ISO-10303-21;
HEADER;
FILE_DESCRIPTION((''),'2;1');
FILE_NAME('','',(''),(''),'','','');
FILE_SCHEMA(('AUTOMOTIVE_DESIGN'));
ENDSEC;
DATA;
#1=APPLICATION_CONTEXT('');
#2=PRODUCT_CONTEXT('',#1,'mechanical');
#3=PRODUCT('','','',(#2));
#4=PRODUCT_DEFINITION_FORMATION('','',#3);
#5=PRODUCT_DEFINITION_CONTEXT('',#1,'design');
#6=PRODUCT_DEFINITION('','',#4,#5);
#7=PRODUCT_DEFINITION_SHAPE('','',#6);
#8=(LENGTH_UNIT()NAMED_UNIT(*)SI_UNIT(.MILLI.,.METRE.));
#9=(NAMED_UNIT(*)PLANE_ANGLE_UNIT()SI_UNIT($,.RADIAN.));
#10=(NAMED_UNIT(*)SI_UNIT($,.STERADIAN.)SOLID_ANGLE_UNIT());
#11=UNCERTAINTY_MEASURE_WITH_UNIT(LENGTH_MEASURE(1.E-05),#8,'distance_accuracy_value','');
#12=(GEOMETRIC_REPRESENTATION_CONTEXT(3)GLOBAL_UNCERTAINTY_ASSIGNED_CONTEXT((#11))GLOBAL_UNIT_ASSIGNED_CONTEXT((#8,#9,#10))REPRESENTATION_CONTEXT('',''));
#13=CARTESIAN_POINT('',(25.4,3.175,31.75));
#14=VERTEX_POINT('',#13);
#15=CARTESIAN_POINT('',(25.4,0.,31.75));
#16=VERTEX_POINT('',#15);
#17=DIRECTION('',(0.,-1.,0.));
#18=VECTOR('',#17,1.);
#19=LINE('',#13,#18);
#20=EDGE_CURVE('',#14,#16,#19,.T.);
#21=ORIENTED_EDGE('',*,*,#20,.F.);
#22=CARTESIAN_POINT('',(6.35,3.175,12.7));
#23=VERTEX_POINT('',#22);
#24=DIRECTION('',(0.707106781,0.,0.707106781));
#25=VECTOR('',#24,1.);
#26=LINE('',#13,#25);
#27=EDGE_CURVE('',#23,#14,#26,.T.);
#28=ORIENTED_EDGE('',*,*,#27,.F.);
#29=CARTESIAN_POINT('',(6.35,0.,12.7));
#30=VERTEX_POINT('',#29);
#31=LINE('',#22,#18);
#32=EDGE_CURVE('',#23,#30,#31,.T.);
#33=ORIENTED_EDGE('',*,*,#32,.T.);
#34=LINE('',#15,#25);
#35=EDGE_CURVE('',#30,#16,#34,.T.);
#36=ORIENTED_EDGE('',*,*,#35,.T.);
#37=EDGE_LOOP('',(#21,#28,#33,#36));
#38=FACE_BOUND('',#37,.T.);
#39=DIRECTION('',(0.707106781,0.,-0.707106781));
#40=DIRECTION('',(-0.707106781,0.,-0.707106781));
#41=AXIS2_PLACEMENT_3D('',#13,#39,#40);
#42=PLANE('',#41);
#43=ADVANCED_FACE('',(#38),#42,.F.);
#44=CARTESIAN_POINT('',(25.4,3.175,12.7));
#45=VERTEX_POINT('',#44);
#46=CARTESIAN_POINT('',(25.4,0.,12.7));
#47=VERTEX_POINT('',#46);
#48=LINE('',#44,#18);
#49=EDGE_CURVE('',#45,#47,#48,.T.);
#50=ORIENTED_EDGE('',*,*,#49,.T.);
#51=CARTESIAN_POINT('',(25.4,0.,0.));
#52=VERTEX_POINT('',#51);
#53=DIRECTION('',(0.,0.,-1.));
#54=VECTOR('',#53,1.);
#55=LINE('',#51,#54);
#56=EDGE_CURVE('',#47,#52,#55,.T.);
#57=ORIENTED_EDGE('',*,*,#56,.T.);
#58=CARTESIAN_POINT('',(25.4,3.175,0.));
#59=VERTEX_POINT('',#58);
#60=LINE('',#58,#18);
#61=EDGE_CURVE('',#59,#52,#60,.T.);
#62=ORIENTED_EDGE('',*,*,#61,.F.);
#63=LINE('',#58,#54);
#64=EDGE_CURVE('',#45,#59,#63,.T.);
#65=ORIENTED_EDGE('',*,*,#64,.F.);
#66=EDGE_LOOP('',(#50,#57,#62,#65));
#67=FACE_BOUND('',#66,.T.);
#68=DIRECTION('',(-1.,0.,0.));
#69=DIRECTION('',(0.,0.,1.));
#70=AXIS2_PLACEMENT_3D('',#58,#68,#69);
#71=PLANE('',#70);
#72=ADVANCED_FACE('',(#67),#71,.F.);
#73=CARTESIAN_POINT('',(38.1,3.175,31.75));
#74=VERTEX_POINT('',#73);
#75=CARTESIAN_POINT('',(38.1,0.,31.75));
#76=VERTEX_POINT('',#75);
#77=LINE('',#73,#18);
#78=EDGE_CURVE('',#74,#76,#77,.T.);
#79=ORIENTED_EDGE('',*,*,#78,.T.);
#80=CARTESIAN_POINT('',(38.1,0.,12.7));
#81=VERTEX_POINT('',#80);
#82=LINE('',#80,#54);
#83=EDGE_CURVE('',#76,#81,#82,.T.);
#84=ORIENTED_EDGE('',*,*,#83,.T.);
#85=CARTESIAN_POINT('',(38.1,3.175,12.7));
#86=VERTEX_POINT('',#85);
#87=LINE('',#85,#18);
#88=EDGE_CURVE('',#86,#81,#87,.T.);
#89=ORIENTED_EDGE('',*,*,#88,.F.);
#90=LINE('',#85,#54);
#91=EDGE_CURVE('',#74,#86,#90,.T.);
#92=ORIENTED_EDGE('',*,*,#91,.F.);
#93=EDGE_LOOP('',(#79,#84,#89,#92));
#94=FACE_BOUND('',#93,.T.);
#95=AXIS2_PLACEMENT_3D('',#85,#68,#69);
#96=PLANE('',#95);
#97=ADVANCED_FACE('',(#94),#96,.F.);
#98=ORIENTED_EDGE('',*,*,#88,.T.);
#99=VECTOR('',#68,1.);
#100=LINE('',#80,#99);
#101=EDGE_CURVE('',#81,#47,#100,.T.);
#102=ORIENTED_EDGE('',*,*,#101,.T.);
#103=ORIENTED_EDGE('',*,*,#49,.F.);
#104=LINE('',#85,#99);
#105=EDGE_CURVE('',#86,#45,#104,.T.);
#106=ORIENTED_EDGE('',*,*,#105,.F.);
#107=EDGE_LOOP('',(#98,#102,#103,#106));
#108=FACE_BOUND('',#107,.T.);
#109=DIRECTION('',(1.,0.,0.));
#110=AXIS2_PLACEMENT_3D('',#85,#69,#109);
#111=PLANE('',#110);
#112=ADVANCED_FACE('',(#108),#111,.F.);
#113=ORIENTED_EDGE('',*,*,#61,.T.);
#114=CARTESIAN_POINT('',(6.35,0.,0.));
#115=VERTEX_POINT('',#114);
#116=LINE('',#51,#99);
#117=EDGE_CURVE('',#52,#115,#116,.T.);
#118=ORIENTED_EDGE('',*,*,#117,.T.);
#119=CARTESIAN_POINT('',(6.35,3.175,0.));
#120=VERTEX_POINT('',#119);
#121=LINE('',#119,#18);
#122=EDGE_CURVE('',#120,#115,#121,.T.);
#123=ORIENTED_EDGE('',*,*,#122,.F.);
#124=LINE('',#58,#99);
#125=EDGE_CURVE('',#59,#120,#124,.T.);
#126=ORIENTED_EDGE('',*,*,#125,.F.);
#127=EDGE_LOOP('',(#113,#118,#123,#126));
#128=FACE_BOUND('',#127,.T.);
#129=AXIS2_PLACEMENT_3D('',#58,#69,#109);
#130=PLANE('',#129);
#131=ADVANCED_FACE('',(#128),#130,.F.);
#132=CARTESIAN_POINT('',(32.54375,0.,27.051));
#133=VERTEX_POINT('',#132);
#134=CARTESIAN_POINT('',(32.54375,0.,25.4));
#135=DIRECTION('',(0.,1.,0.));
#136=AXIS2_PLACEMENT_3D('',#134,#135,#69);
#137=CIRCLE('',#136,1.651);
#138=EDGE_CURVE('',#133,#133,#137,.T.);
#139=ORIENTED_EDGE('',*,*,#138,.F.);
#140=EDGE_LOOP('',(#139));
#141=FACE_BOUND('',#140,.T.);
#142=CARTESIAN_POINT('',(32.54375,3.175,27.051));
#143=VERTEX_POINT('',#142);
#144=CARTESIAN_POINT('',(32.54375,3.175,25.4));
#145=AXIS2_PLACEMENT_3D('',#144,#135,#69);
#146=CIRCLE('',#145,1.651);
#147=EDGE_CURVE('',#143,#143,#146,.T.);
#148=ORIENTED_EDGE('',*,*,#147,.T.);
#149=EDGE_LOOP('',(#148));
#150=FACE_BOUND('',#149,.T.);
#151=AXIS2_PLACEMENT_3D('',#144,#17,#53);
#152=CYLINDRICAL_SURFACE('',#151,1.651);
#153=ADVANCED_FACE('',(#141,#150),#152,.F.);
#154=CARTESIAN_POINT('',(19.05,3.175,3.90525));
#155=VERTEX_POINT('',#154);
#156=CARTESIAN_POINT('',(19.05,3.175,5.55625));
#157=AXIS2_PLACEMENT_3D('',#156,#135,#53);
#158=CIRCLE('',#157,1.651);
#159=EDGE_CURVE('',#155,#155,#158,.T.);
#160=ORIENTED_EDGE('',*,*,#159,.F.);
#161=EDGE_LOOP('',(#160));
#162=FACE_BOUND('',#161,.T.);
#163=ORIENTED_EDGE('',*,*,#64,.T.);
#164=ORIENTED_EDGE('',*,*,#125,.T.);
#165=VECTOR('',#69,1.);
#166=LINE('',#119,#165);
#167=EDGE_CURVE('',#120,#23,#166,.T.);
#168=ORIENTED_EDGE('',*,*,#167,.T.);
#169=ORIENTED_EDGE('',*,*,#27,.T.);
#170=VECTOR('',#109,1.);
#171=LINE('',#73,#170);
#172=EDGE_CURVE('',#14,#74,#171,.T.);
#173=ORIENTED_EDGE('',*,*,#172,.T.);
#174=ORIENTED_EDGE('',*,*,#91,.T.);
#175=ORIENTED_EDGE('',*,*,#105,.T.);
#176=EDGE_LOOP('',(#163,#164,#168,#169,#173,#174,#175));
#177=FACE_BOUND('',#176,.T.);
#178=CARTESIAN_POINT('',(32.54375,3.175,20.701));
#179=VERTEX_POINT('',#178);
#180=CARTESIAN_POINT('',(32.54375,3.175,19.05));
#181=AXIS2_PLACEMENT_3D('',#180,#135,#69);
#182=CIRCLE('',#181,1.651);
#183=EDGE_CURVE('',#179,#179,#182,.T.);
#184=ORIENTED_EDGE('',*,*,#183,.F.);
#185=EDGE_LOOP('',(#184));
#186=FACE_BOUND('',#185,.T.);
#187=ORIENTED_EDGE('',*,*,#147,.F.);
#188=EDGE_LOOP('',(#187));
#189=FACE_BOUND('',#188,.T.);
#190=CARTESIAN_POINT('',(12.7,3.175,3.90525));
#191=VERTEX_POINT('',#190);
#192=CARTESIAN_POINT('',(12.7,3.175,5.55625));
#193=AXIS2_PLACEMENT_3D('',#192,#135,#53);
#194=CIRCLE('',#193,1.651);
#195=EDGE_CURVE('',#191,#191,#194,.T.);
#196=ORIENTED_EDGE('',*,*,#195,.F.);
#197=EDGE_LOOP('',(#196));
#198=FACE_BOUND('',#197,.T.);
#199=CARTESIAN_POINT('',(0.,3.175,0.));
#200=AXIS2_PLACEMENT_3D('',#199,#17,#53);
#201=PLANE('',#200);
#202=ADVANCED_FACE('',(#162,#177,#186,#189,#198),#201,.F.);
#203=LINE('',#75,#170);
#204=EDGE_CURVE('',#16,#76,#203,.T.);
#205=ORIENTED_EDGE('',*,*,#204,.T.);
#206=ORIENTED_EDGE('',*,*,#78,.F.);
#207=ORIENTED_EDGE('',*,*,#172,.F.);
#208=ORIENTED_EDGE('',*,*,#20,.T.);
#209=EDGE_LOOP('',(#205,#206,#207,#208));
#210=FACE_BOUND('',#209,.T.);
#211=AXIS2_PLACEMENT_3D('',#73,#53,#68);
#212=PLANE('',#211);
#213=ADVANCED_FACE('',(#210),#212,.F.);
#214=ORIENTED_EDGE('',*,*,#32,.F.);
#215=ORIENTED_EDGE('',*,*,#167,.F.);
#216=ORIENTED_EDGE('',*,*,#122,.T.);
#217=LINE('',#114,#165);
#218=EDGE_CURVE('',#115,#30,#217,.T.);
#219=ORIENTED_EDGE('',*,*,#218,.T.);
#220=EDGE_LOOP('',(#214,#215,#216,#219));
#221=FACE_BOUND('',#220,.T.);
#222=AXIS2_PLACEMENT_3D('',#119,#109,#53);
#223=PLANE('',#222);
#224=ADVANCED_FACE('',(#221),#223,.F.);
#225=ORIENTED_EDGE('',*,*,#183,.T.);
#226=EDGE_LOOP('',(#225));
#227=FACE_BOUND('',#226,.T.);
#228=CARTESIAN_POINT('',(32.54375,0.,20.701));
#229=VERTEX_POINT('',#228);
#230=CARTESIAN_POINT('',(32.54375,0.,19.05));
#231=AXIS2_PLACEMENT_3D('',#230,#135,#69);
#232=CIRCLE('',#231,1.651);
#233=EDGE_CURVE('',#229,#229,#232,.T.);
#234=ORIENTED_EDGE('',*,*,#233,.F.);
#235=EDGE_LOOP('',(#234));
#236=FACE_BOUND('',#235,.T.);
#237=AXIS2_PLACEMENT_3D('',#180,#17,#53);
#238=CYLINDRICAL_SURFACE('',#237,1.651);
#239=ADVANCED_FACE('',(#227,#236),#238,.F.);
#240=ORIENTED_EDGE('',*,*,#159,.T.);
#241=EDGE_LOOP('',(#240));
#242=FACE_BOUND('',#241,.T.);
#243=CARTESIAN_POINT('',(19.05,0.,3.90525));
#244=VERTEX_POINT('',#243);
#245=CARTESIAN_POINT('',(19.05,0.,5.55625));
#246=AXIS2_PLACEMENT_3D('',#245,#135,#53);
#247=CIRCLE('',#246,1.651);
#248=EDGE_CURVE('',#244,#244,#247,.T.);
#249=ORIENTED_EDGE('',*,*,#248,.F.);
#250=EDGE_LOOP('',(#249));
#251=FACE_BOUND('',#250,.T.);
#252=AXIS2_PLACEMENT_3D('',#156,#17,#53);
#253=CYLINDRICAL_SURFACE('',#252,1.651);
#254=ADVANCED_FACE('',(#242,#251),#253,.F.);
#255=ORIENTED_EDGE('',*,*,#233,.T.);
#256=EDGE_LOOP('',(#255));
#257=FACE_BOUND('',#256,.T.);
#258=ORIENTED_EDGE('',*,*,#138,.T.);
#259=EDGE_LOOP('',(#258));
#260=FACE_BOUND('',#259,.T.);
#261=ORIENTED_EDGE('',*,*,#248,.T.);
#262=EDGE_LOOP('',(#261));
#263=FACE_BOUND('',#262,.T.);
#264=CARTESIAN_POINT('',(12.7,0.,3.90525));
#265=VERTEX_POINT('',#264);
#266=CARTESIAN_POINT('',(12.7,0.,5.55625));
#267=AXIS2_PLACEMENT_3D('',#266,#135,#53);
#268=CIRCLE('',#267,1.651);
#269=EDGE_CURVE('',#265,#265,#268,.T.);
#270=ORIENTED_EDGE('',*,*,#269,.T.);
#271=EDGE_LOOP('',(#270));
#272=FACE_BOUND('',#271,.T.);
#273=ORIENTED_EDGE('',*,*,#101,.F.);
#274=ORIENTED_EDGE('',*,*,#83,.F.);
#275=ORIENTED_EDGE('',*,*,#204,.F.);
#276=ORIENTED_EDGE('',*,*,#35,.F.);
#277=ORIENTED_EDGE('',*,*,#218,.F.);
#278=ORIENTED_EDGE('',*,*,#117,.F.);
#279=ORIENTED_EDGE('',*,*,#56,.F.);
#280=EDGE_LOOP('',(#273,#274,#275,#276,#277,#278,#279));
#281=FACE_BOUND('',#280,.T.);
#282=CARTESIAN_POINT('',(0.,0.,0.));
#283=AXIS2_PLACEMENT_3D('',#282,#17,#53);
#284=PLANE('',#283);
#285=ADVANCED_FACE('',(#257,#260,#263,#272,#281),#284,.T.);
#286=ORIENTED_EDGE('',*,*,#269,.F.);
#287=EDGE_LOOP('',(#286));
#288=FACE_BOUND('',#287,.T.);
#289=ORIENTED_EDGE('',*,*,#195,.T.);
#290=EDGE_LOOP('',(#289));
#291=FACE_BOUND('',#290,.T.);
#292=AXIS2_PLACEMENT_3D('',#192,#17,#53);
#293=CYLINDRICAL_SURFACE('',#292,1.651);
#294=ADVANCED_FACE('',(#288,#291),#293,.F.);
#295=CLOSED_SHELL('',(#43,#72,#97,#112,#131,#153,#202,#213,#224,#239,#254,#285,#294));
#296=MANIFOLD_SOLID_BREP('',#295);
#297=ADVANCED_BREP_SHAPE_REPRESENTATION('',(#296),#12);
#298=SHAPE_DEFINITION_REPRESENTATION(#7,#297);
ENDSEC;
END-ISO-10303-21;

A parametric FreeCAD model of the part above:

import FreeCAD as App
import Part
import Sketcher
from FreeCAD import Vector
Q = App.Units.Quantity

doc = App.newDocument("Part")
body = doc.addObject("PartDesign::Body", "Body")

sketch1 = body.newObject("Sketcher::SketchObject", "Sketch")
sketch1.AttachmentSupport = (doc.getObject("XZ_Plane"), [""])
sketch1.MapMode = "FlatFace"
sketch1.addGeometry([
    Part.LineSegment(Vector(38.1, 12.7, 0), Vector(25.4, 12.7, 0)),
    Part.LineSegment(Vector(25.4, 12.7, 0), Vector(25.4, 0, 0)),
    Part.LineSegment(Vector(25.4, 0, 0), Vector(6.3, 0, 0)),
    Part.LineSegment(Vector(6.3, 0, 0), Vector(6.3, 12.7, 0)),
    Part.LineSegment(Vector(6.3, 12.7, 0), Vector(25.4, 31.8, 0)),
    Part.LineSegment(Vector(25.4, 31.8, 0), Vector(38.1, 31.8, 0)),
    Part.LineSegment(Vector(38.1, 31.8, 0), Vector(38.1, 12.7, 0)),
    Part.Circle(Vector(32.5, 25.4, 0), Vector(0, 0, 1), 1.7),
    Part.Circle(Vector(32.5, 19.1, 0), Vector(0, 0, 1), 1.7),
    Part.Circle(Vector(12.7, 5.6, 0), Vector(0, 0, 1), 1.7),
    Part.Circle(Vector(19.1, 5.6, 0), Vector(0, 0, 1), 1.7),
], False)
sketch1.addConstraint([
    Sketcher.Constraint("Coincident", 0, 2, 1, 1),
    Sketcher.Constraint("Coincident", 1, 2, 2, 1),
    Sketcher.Constraint("Coincident", 2, 2, 3, 1),
    Sketcher.Constraint("Coincident", 3, 2, 4, 1),
    Sketcher.Constraint("Coincident", 4, 2, 5, 1),
    Sketcher.Constraint("Coincident", 5, 2, 6, 1),
    Sketcher.Constraint("Coincident", 6, 2, 0, 1),
    Sketcher.Constraint("Horizontal", 0),
    Sketcher.Constraint("Vertical", 1),
    Sketcher.Constraint("Horizontal", 2),
    Sketcher.Constraint("Vertical", 3),
    Sketcher.Constraint("Horizontal", 5),
    Sketcher.Constraint("Vertical", 6),
    Sketcher.Constraint("Equal", 7, 8),
    Sketcher.Constraint("Equal", 8, 9),
    Sketcher.Constraint("Equal", 9, 10),
    Sketcher.Constraint("PointOnObject", 1, 2, -1),
    Sketcher.Constraint("Horizontal", 9, 3, 10, 3),
    Sketcher.Constraint("Horizontal", 0, 2, 3, 2),
    Sketcher.Constraint("Vertical", 7, 3, 8, 3),
    Sketcher.Constraint("Vertical", 1, 2, 4, 2),
    Sketcher.Constraint("Equal", 5, 1),
    Sketcher.Constraint("Equal", 2, 6),
    Sketcher.Constraint("Diameter", 7, Q("0.13 in")),
    Sketcher.Constraint("DistanceX", 0, 2, 0, 1, Q("0.5 in")),
    Sketcher.Constraint("DistanceY", -1, 1, 7, 3, Q("1 in")),
    Sketcher.Constraint("DistanceX", -1, 1, 0, 2, Q("1 in")),
    Sketcher.Constraint("DistanceX", 2, 2, 2, 1, Q("0.75 in")),
    Sketcher.Constraint("DistanceX", -1, 1, 9, 3, Q("0.5 in")),
    Sketcher.Constraint("DistanceX", 2, 2, 10, 3, Q("0.5 in")),
    Sketcher.Constraint("DistanceY", 8, 3, 4, 2, Q("0.5 in")),
    Sketcher.Constraint("DistanceX", -1, 1, 7, 3, Q("1.28125 in")),
    Sketcher.Constraint("DistanceY", -1, 1, 9, 3, Q("0.21875 in")),
])
pad1 = body.newObject("PartDesign::Pad", "Pad")
pad1.Profile = sketch1
pad1.Length = Q("0.125 in")
pad1.Reversed = True

doc.recompute()
